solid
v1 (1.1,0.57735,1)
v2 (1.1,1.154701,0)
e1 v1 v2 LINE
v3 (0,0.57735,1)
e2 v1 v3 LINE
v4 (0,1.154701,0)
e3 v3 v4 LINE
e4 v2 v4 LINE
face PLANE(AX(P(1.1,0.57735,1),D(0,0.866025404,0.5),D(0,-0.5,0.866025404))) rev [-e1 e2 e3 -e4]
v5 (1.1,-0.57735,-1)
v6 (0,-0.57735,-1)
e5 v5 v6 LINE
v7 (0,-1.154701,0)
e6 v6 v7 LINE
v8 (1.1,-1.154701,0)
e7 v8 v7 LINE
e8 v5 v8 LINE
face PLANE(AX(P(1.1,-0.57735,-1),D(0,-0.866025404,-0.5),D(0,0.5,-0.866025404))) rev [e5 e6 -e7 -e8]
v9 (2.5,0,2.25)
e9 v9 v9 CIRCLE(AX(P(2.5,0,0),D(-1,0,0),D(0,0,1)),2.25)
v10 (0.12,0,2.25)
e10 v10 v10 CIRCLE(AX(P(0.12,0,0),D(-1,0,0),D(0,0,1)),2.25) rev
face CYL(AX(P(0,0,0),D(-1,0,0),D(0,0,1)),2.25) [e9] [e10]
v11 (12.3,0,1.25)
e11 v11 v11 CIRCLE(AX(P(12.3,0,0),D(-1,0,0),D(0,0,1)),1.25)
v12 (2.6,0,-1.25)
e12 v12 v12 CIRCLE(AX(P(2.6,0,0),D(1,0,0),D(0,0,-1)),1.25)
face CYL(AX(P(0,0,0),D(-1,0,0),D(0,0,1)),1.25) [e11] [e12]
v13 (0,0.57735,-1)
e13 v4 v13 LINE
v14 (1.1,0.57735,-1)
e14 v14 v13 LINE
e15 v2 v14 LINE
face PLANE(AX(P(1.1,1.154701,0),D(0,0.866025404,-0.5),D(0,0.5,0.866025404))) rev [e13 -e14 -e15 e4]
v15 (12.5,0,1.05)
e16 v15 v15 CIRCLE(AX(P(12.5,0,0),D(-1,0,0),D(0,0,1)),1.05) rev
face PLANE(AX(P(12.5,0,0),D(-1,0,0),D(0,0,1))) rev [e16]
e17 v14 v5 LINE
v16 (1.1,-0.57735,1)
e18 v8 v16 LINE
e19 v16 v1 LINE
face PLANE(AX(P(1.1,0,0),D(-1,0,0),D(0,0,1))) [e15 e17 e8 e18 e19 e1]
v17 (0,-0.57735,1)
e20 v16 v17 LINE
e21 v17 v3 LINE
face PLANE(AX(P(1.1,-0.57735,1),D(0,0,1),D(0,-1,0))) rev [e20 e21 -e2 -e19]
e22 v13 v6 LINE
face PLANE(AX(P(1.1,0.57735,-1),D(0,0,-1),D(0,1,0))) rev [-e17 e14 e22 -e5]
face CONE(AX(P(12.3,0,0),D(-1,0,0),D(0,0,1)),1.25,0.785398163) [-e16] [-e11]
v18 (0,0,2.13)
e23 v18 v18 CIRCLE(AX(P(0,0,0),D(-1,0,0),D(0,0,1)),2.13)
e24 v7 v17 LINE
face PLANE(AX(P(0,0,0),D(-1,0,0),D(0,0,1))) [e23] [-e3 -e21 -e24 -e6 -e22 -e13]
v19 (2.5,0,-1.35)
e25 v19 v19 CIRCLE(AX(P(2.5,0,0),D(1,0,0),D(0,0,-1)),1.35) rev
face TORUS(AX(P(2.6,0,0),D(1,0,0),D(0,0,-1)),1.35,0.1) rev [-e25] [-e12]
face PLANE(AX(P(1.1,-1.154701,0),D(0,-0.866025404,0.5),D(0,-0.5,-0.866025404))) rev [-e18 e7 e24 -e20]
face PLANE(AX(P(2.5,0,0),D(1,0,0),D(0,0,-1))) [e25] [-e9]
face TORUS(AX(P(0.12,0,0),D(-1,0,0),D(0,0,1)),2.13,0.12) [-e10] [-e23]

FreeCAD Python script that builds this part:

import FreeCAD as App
import Part
import Sketcher

V = App.Vector
Q = App.Units.Quantity


def edges_at(feature, points):
    """Names of the edges that pass closest to the given points."""
    edges = feature.Shape.Edges
    near = lambda p: min(range(len(edges)), key=lambda i: edges[i].distToShape(Part.Vertex(*p))[0])
    return sorted({f"Edge{near(p) + 1}" for p in points})


def add_polygon(sketch, points):
    """Adds a closed chain of lines whose ends are joined by coincident constraints."""
    first, n = sketch.GeometryCount, len(points)
    for a, b in zip(points, points[1:] + points[:1]):
        sketch.addGeometry(Part.LineSegment(App.Vector(*a, 0), App.Vector(*b, 0)), False)
    for i in range(n):
        sketch.addConstraint(Sketcher.Constraint("Coincident", first + i, 2, first + (i + 1) % n, 1))

doc = App.newDocument("Part")
body = doc.addObject("PartDesign::Body", "Body")

# Sketch on XY plane
sketch1 = doc.addObject("Sketcher::SketchObject", "Sketch")
body.addObject(sketch1)
sketch1.AttachmentSupport = (doc.XY_Plane, [""])
sketch1.MapMode = "FlatFace"
add_polygon(sketch1, [(12.5, 0), (12.5, 1.2), (2.5, 1.2), (2.5, 2.2), (0, 2.2), (0, 0)])  # lines 0-5
sketch1.addConstraint(Sketcher.Constraint("Vertical", 0))
sketch1.addConstraint(Sketcher.Constraint("Horizontal", 1))
sketch1.addConstraint(Sketcher.Constraint("Vertical", 2))
sketch1.addConstraint(Sketcher.Constraint("Horizontal", 3))
sketch1.addConstraint(Sketcher.Constraint("Vertical", 4))
sketch1.addConstraint(Sketcher.Constraint("Horizontal", 5))
sketch1.addConstraint(Sketcher.Constraint("Coincident", 4, 2, -1, 1))
sketch1.addConstraint(Sketcher.Constraint("DistanceX", 1, 2, 1, 1, 10.0))
sketch1.addConstraint(Sketcher.Constraint("DistanceY", 2, 1, 2, 2, 1.0))
sketch1.addConstraint(Sketcher.Constraint("DistanceX", 3, 2, 3, 1, 2.5))
sketch1.addConstraint(Sketcher.Constraint("DistanceY", 0, 1, 0, 2, 1.25))
revolution = doc.addObject("PartDesign::Revolution", "Revolution")
body.addObject(revolution)
revolution.Profile = sketch1
revolution.ReferenceAxis = (sketch1, ["H_Axis"])
revolution.Angle = 360
doc.recompute()

fillet = doc.addObject("PartDesign::Fillet", "Fillet")
body.addObject(fillet)
fillet.Base = (revolution, edges_at(revolution, [(2.5, 0, -1.25)]))
fillet.Radius = 0.1
doc.recompute()

fillet2 = doc.addObject("PartDesign::Fillet", "Fillet001")
body.addObject(fillet2)
fillet2.Base = (fillet, edges_at(fillet, [(0, 0, -2.25)]))
fillet2.Radius = 0.12
doc.recompute()

chamfer = doc.addObject("PartDesign::Chamfer", "Chamfer")
body.addObject(chamfer)
chamfer.Base = (fillet2, edges_at(fillet2, [(12.5, 0, -1.25)]))
chamfer.Size = 0.2

# Sketch on YZ plane
sketch2 = doc.addObject("Sketcher::SketchObject", "Sketch001")
body.addObject(sketch2)
sketch2.AttachmentSupport = (doc.YZ_Plane, [""])
sketch2.MapMode = "FlatFace"
add_polygon(sketch2, [(1.2, 0), (0.6, -1), (-0.6, -1), (-1.2, 0), (-0.6, 1), (0.6, 1)])  # lines 0-5
sketch2.addConstraint(Sketcher.Constraint("Horizontal", 1))
sketch2.addConstraint(Sketcher.Constraint("Horizontal", 4))
sketch2.addConstraint(Sketcher.Constraint("Symmetric", 0, 2, 3, 2, -1, 1))
sketch2.addConstraint(Sketcher.Constraint("Symmetric", 2, 2, 5, 2, -1, 1))
sketch2.addConstraint(Sketcher.Constraint("PointOnObject", 2, 2, -1))
sketch2.addConstraint(Sketcher.Constraint("Parallel", 2, 5))
sketch2.addConstraint(Sketcher.Constraint("Vertical", 1, 2, 3, 2))
sketch2.addConstraint(Sketcher.Constraint("Angle", 0, Q("-120 deg")))
sketch2.addConstraint(Sketcher.Constraint("DistanceY", 0, 2, -1, 1, 1.0))
sketch2.addConstraint(Sketcher.Constraint("DistanceX", 1, 2, 1, 1, 1.154701))
pocket1 = doc.addObject("PartDesign::Pocket", "Pocket")
body.addObject(pocket1)
pocket1.Profile = sketch2
pocket1.Length = 1.1
pocket1.Reversed = True

doc.recompute()
